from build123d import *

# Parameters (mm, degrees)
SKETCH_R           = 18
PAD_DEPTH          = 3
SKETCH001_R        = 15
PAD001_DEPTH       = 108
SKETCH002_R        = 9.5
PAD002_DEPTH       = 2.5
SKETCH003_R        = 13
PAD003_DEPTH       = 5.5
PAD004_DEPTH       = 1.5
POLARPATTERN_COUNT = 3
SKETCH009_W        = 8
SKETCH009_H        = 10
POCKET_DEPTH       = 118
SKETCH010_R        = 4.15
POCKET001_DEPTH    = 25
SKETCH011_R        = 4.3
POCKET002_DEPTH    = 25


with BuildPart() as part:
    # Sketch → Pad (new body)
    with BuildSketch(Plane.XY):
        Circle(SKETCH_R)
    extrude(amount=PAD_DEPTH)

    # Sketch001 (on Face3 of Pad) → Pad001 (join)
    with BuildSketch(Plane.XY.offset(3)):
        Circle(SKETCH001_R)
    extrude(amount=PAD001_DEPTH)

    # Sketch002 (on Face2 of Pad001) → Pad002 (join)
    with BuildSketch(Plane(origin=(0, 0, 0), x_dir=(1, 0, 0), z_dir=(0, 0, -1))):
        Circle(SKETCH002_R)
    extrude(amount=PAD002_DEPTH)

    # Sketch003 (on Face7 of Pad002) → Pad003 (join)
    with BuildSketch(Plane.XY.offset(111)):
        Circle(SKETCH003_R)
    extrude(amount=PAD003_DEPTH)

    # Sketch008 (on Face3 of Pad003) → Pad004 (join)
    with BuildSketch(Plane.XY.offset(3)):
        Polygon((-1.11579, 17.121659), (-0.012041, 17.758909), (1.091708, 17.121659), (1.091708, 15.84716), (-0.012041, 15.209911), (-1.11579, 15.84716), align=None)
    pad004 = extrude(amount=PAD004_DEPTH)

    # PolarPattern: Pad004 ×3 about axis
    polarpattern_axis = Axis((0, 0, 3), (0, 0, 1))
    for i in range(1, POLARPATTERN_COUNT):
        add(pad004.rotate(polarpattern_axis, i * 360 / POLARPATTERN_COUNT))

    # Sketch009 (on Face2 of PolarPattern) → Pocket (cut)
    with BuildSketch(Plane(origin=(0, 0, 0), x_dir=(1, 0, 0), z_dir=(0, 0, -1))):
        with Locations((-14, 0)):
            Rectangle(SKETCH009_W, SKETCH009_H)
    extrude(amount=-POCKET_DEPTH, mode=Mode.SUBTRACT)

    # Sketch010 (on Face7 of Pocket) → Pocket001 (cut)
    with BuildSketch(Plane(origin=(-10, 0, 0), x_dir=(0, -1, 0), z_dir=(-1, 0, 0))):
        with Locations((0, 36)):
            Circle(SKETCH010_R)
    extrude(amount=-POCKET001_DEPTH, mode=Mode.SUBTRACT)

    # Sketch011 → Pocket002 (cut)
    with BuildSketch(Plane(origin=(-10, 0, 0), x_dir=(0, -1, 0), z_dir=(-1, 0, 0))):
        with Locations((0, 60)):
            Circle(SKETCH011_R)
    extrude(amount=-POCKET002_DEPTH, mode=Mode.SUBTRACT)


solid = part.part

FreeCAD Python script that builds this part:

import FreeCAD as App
import Part
import Sketcher

V = App.Vector
Q = App.Units.Quantity

doc = App.newDocument("Part")
body = doc.addObject("PartDesign::Body", "Body")

sketch1 = doc.addObject("Sketcher::SketchObject", "Sketch")
body.addObject(sketch1)
sketch1.AttachmentSupport = (doc.XY_Plane, [""])
sketch1.MapMode = "FlatFace"
sketch1.addGeometry(Part.Circle(V(0, 0, 0), V(0, 0, 1), 18), False)
sketch1.addConstraint([
    Sketcher.Constraint("Coincident", 0, 3, -1, 1),
    Sketcher.Constraint("Diameter", 0, Q("36 mm")),
])
pad1 = doc.addObject("PartDesign::Pad", "Pad")
body.addObject(pad1)
pad1.Profile = sketch1
pad1.Length = 3

sketch2 = doc.addObject("Sketcher::SketchObject", "Sketch001")
body.addObject(sketch2)
sketch2.AttachmentSupport = (doc.XY_Plane, [""])
sketch2.MapMode = "FlatFace"
sketch2.AttachmentOffset = App.Placement(V(0, 0, 3), App.Rotation())
sketch2.addGeometry(Part.Circle(V(0, 0, 0), V(0, 0, 1), 15), False)
sketch2.addConstraint([
    Sketcher.Constraint("Coincident", 0, 3, -1, 1),
    Sketcher.Constraint("Diameter", 0, Q("30 mm")),
])
pad2 = doc.addObject("PartDesign::Pad", "Pad001")
body.addObject(pad2)
pad2.Profile = sketch2
pad2.Length = 108

sketch3 = doc.addObject("Sketcher::SketchObject", "Sketch002")
body.addObject(sketch3)
sketch3.AttachmentSupport = (doc.XY_Plane, [""])
sketch3.MapMode = "FlatFace"
sketch3.addGeometry(Part.Circle(V(0, 0, 0), V(0, 0, 1), 10), False)
sketch3.addConstraint([
    Sketcher.Constraint("Coincident", 0, 3, -1, 1),
    Sketcher.Constraint("Diameter", 0, Q("19 mm")),
])
pad3 = doc.addObject("PartDesign::Pad", "Pad002")
body.addObject(pad3)
pad3.Profile = sketch3
pad3.Length = 2.5
pad3.Reversed = True

sketch4 = doc.addObject("Sketcher::SketchObject", "Sketch003")
body.addObject(sketch4)
sketch4.AttachmentSupport = (doc.XY_Plane, [""])
sketch4.MapMode = "FlatFace"
sketch4.AttachmentOffset = App.Placement(V(0, 0, 111), App.Rotation())
sketch4.addGeometry(Part.Circle(V(0, 0, 0), V(0, 0, 1), 13), False)
sketch4.addConstraint([
    Sketcher.Constraint("Coincident", 0, 3, -1, 1),
    Sketcher.Constraint("Diameter", 0, Q("26 mm")),
])
pad4 = doc.addObject("PartDesign::Pad", "Pad003")
body.addObject(pad4)
pad4.Profile = sketch4
pad4.Length = 5.5

sketch5 = doc.addObject("Sketcher::SketchObject", "Sketch004")
body.addObject(sketch5)
sketch5.AttachmentSupport = (doc.XY_Plane, [""])
sketch5.MapMode = "FlatFace"
sketch5.AttachmentOffset = App.Placement(V(0, 0, 3), App.Rotation())
sketch5.addGeometry([
    Part.LineSegment(V(0, 17.8, 0), V(-1.1, 17.1, 0)),
    Part.LineSegment(V(-1.1, 17.1, 0), V(-1.1, 15.8, 0)),
    Part.LineSegment(V(-1.1, 15.8, 0), V(0, 15.2, 0)),
    Part.LineSegment(V(0, 15.2, 0), V(1.1, 15.8, 0)),
    Part.LineSegment(V(1.1, 15.8, 0), V(1.1, 17.1, 0)),
    Part.LineSegment(V(1.1, 17.1, 0), V(0, 17.8, 0)),
], False)
sketch5.addConstraint([
    Sketcher.Constraint("Coincident", 0, 2, 1, 1),
    Sketcher.Constraint("Coincident", 1, 2, 2, 1),
    Sketcher.Constraint("Coincident", 2, 2, 3, 1),
    Sketcher.Constraint("Coincident", 3, 2, 4, 1),
    Sketcher.Constraint("Coincident", 4, 2, 5, 1),
    Sketcher.Constraint("Coincident", 5, 2, 0, 1),
    Sketcher.Constraint("Vertical", 1),
    Sketcher.Constraint("Vertical", 4),
    Sketcher.Constraint("Parallel", 0, 3),
    Sketcher.Constraint("Parallel", 2, 5),
    Sketcher.Constraint("Horizontal", 1, 2, 3, 2),
    Sketcher.Constraint("Horizontal", 0, 2, 4, 2),
    Sketcher.Constraint("Vertical", 2, 2, 5, 2),
    Sketcher.Constraint("Angle", 0, Q("-149.999992 deg")),
    Sketcher.Constraint("DistanceY", 1, 2, 1, 1, Q("1.274499 mm")),
    Sketcher.Constraint("Distance", 0, Q("1.2745 mm")),
    Sketcher.Constraint("DistanceX", 0, 2, -1, 1, Q("1.11579 mm")),
    Sketcher.Constraint("DistanceY", -1, 1, 0, 2, Q("17.121659 mm")),
])
pad5 = doc.addObject("PartDesign::Pad", "Pad004")
body.addObject(pad5)
pad5.Profile = sketch5
pad5.Length = 1.5
doc.recompute()

polarpattern = doc.addObject("PartDesign::PolarPattern", "PolarPattern")
body.addObject(polarpattern)
polarpattern.Originals = [pad5]
polarpattern.Axis = (doc.Z_Axis, [""])
polarpattern.Angle = 360
polarpattern.Occurrences = 3
body.Tip = polarpattern

sketch6 = doc.addObject("Sketcher::SketchObject", "Sketch005")
body.addObject(sketch6)
sketch6.AttachmentSupport = (doc.XY_Plane, [""])
sketch6.MapMode = "FlatFace"
sketch6.addGeometry([
    Part.LineSegment(V(-18, -5, 0), V(-18, 5, 0)),
    Part.LineSegment(V(-18, 5, 0), V(-10, 5, 0)),
    Part.LineSegment(V(-10, 5, 0), V(-10, -5, 0)),
    Part.LineSegment(V(-10, -5, 0), V(-18, -5, 0)),
], False)
sketch6.addConstraint([
    Sketcher.Constraint("Coincident", 0, 2, 1, 1),
    Sketcher.Constraint("Coincident", 1, 2, 2, 1),
    Sketcher.Constraint("Coincident", 2, 2, 3, 1),
    Sketcher.Constraint("Coincident", 3, 2, 0, 1),
    Sketcher.Constraint("Vertical", 0),
    Sketcher.Constraint("Horizontal", 1),
    Sketcher.Constraint("Vertical", 2),
    Sketcher.Constraint("Horizontal", 3),
    Sketcher.Constraint("DistanceX", 1, 1, 1, 2, Q("8 mm")),
    Sketcher.Constraint("DistanceY", 0, 1, 0, 2, Q("10 mm")),
    Sketcher.Constraint("DistanceX", 0, 2, -1, 1, Q("18 mm")),
    Sketcher.Constraint("DistanceY", -1, 1, 0, 2, Q("5 mm")),
])
pocket1 = doc.addObject("PartDesign::Pocket", "Pocket")
body.addObject(pocket1)
pocket1.Profile = sketch6
pocket1.Length = 118
pocket1.Reversed = True

sketch7 = doc.addObject("Sketcher::SketchObject", "Sketch006")
body.addObject(sketch7)
sketch7.AttachmentSupport = (doc.YZ_Plane, [""])
sketch7.MapMode = "FlatFace"
sketch7.AttachmentOffset = App.Placement(V(0, 0, -10), App.Rotation())
sketch7.addGeometry(Part.Circle(V(0, 36, 0), V(0, 0, 1), 4.2), False)
sketch7.addConstraint([
    Sketcher.Constraint("PointOnObject", 0, 3, -2),
    Sketcher.Constraint("Diameter", 0, Q("8.3 mm")),
    Sketcher.Constraint("DistanceY", -1, 1, 0, 3, Q("36 mm")),
])
pocket2 = doc.addObject("PartDesign::Pocket", "Pocket001")
body.addObject(pocket2)
pocket2.Profile = sketch7
pocket2.Length = 25
pocket2.Reversed = True

sketch8 = doc.addObject("Sketcher::SketchObject", "Sketch007")
body.addObject(sketch8)
sketch8.AttachmentSupport = (doc.YZ_Plane, [""])
sketch8.MapMode = "FlatFace"
sketch8.AttachmentOffset = App.Placement(V(0, 0, -10), App.Rotation())
sketch8.addGeometry(Part.Circle(V(0, 60, 0), V(0, 0, 1), 4.3), False)
sketch8.addConstraint([
    Sketcher.Constraint("PointOnObject", 0, 3, -2),
    Sketcher.Constraint("Diameter", 0, Q("8.6 mm")),
    Sketcher.Constraint("DistanceY", -1, 1, 0, 3, Q("60 mm")),
])
pocket3 = doc.addObject("PartDesign::Pocket", "Pocket002")
body.addObject(pocket3)
pocket3.Profile = sketch8
pocket3.Length = 25
pocket3.Reversed = True

doc.recompute()
